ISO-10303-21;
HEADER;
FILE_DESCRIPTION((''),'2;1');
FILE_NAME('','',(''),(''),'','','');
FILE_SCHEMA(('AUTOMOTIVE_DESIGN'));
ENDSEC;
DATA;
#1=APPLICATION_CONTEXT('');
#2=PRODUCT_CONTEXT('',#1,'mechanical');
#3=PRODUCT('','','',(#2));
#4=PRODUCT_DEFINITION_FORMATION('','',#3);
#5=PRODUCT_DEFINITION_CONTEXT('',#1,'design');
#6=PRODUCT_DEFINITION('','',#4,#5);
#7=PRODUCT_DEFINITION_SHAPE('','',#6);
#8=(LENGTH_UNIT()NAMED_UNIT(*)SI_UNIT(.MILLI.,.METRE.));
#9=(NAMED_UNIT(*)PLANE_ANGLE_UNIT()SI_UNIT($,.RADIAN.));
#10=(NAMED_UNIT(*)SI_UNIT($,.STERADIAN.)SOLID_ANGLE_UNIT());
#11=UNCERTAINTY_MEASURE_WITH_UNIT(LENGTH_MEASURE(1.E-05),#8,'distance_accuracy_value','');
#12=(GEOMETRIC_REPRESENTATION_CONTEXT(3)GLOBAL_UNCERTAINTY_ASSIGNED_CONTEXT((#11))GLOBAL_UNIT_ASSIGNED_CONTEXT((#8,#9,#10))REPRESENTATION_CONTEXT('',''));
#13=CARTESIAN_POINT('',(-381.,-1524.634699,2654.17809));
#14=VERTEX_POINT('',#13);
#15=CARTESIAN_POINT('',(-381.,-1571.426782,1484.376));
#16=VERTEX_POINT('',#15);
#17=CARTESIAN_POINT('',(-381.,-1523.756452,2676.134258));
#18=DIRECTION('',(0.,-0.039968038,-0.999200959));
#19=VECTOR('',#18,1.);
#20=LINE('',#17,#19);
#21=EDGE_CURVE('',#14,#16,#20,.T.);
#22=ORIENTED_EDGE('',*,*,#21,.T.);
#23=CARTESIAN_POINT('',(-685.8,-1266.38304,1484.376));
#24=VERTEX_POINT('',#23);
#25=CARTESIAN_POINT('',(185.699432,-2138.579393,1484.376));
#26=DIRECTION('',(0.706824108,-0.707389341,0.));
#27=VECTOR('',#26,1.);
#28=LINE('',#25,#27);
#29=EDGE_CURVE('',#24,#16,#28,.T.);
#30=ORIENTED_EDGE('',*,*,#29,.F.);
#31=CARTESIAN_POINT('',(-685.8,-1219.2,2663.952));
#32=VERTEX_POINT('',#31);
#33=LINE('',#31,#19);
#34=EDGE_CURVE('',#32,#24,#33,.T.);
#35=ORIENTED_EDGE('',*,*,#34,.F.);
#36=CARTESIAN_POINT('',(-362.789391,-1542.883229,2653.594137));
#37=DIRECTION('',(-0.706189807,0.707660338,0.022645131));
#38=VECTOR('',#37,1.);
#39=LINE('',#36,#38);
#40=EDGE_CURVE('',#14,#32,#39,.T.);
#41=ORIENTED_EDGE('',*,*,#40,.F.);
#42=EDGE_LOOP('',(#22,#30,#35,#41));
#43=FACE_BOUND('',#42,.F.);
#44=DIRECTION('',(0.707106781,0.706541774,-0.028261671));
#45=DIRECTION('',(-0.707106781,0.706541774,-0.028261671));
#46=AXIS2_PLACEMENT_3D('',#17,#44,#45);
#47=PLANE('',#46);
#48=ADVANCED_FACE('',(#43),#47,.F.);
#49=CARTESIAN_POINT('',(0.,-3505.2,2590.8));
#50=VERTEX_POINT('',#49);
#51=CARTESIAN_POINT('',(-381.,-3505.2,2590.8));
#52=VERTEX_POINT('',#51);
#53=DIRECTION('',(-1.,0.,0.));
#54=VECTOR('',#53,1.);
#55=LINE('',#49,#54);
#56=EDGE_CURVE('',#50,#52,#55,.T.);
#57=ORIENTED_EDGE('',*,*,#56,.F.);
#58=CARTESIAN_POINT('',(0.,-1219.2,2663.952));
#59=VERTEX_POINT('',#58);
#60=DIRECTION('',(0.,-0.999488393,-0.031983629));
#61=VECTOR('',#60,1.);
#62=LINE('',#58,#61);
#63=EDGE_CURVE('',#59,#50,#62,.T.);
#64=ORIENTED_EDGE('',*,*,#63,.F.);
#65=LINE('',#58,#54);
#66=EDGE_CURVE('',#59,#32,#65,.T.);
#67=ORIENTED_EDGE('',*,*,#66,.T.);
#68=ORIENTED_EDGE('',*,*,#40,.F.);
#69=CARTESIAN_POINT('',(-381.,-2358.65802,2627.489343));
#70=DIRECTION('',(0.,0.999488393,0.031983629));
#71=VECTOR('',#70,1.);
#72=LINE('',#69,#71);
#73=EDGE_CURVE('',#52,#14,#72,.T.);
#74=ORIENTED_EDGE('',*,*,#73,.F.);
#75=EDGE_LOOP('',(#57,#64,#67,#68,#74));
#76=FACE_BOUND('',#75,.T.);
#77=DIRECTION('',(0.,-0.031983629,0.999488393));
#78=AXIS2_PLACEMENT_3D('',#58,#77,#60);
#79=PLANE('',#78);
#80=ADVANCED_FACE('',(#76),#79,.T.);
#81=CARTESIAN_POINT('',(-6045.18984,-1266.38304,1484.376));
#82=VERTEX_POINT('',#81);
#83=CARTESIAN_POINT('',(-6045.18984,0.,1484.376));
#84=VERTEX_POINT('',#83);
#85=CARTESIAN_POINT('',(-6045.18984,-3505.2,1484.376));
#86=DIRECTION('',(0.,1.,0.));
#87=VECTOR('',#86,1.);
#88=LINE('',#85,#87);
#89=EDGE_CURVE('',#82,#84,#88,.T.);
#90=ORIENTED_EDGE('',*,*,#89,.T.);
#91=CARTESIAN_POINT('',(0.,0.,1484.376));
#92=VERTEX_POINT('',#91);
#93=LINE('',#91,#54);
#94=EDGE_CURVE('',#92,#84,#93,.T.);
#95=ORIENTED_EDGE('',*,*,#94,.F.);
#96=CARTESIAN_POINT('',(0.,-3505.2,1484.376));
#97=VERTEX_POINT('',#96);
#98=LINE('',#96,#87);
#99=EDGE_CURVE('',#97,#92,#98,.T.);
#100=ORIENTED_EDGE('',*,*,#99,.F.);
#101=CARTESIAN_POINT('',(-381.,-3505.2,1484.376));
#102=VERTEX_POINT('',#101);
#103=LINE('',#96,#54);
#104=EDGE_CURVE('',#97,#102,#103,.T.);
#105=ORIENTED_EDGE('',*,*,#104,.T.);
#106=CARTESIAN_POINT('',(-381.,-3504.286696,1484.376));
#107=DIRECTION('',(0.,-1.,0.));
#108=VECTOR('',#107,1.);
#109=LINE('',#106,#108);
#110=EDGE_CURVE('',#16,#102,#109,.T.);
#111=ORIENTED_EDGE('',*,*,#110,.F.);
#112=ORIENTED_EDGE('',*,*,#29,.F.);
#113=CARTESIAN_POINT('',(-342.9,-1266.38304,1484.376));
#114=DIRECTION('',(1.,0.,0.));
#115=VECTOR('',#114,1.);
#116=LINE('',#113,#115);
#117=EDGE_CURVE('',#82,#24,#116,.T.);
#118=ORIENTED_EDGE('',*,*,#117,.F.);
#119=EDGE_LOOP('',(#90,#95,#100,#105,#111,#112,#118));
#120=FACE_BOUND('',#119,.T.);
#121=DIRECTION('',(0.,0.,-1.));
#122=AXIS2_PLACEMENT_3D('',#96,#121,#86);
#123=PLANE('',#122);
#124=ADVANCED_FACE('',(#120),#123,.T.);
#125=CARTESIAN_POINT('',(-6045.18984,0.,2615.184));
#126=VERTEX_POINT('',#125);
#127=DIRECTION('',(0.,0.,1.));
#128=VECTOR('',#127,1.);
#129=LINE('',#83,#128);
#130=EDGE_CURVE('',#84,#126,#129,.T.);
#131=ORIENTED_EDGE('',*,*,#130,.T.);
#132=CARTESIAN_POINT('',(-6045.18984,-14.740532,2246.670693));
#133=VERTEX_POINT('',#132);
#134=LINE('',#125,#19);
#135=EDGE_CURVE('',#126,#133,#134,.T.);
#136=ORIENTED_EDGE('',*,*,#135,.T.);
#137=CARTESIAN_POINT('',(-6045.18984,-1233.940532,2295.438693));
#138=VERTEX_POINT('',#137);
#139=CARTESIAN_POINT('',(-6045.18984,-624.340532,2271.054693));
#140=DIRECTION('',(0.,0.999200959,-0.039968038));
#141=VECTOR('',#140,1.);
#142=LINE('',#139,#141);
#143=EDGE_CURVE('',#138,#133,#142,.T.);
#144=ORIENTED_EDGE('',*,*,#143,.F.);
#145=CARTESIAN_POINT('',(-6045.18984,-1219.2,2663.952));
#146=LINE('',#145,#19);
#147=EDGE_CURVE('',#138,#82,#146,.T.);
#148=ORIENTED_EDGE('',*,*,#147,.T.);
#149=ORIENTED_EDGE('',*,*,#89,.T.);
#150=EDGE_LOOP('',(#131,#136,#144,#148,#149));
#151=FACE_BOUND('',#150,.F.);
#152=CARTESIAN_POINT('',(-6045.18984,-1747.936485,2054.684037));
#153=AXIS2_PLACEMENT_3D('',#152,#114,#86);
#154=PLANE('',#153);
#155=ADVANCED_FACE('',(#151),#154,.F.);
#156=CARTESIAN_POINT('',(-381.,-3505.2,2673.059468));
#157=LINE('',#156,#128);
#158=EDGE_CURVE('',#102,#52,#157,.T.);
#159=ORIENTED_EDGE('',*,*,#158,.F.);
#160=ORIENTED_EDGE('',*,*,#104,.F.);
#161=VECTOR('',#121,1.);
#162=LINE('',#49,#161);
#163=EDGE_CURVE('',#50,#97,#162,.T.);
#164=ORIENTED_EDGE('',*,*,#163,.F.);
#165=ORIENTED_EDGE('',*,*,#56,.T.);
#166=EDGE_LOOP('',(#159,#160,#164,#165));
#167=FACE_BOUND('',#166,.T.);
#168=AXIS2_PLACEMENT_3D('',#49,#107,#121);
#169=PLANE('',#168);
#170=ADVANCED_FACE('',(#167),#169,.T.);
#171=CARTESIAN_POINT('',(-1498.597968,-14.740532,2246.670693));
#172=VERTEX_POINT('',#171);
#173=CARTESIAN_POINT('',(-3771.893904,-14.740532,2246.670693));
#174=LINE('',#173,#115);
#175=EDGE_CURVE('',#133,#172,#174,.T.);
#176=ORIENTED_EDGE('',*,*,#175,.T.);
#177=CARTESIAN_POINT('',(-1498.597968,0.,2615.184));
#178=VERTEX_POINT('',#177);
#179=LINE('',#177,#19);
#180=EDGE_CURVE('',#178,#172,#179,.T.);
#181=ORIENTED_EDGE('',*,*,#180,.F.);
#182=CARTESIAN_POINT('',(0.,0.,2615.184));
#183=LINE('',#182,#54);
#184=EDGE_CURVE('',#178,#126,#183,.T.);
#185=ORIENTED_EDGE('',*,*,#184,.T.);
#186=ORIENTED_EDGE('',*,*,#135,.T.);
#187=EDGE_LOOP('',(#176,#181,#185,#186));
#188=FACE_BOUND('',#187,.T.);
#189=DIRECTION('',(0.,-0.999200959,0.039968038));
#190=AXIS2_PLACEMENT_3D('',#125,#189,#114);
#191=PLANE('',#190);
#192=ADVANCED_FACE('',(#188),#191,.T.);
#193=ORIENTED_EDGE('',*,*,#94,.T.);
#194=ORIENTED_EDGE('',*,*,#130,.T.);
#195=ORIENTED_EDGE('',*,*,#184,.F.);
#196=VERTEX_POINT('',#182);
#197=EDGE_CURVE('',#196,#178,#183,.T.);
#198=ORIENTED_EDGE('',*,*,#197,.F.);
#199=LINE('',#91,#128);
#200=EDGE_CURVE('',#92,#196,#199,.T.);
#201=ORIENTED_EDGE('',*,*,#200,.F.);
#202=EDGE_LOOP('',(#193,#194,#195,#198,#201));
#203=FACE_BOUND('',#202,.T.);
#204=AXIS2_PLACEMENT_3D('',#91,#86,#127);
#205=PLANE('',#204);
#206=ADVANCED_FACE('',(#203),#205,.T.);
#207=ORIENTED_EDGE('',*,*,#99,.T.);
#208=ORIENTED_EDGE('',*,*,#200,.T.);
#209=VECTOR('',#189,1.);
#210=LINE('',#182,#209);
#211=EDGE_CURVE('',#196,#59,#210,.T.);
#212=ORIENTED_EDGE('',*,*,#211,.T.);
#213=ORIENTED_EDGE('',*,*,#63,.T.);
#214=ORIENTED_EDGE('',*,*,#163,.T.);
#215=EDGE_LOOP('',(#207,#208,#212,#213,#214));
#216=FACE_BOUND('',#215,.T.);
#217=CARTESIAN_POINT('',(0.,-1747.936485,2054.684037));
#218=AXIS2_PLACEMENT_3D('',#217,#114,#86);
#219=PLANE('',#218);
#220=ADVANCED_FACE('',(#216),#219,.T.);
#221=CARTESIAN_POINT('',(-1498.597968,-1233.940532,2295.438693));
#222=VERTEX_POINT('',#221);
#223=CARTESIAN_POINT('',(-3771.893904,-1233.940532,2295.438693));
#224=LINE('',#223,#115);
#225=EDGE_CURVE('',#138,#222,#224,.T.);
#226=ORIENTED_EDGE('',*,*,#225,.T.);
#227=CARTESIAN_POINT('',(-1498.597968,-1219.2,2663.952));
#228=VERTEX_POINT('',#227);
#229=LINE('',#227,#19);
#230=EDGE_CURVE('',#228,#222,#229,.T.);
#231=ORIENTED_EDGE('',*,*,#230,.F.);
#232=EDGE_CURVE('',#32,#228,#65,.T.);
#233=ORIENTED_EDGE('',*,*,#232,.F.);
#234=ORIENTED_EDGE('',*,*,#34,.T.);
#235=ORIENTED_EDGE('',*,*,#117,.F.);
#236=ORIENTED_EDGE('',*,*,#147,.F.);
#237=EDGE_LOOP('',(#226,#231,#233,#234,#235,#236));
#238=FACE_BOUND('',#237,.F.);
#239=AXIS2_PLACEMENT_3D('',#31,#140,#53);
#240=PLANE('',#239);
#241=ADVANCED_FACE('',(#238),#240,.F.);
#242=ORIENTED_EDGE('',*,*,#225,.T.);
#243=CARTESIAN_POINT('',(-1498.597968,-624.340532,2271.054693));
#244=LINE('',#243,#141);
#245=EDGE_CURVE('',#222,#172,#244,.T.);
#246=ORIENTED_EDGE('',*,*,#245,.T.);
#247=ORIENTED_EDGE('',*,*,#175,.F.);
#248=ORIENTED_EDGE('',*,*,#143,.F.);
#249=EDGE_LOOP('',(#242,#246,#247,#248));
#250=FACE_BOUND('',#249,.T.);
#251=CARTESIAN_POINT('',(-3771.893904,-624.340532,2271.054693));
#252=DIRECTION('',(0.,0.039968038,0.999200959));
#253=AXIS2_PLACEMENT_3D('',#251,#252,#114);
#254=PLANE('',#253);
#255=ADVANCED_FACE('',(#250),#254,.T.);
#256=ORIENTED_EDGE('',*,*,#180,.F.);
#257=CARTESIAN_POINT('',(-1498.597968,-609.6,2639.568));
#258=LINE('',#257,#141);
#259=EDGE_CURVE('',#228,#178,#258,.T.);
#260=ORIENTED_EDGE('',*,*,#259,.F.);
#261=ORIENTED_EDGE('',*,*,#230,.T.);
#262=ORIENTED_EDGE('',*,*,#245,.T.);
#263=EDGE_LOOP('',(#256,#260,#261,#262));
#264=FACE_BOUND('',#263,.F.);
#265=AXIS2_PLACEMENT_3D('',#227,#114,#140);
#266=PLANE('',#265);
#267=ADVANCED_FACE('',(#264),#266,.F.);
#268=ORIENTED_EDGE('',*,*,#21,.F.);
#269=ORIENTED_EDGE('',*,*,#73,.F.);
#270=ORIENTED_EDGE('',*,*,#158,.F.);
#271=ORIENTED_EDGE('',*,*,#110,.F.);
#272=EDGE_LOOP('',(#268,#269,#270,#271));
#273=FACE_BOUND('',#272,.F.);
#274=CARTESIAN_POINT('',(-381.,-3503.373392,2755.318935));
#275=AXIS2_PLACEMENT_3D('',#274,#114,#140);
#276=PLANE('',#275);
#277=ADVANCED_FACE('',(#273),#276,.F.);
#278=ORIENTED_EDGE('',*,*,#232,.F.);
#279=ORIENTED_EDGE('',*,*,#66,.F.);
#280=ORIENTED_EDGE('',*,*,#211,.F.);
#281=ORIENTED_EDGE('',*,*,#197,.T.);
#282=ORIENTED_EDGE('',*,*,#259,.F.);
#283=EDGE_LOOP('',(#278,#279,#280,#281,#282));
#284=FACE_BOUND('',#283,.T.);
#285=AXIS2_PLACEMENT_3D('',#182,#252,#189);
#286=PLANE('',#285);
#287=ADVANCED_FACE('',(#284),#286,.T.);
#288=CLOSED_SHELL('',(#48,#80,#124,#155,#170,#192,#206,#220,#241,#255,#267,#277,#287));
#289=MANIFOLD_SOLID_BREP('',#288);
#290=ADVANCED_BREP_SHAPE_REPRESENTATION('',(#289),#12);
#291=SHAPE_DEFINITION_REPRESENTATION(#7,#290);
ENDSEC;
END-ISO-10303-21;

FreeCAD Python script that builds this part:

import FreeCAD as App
import Part
import Sketcher
Q = App.Units.Quantity

doc = App.newDocument("Part")
body = doc.addObject("PartDesign::Body", "Body")

# Sketch on YZ plane
sketch1 = body.newObject("Sketcher::SketchObject", "Sketch")
sketch1.AttachmentSupport = (doc.getObject("YZ_Plane"), [""])
sketch1.MapMode = "FlatFace"
sketch1.addGeometry([
    Part.LineSegment(App.Vector(-3505, 1484, 0), App.Vector(0, 1484, 0)),  # 0
    Part.LineSegment(App.Vector(0, 1484, 0), App.Vector(0, 2615, 0)),  # 1
    Part.LineSegment(App.Vector(0, 2615, 0), App.Vector(-1219, 2664, 0)),  # 2
    Part.LineSegment(App.Vector(-1219, 2664, 0), App.Vector(-3505, 2591, 0)),  # 3
    Part.LineSegment(App.Vector(-3505, 2591, 0), App.Vector(-3505, 1484, 0)),  # 4
], False)
sketch1.addConstraint([
    Sketcher.Constraint("Coincident", 0, 2, 1, 1),
    Sketcher.Constraint("Coincident", 1, 2, 2, 1),
    Sketcher.Constraint("Coincident", 2, 2, 3, 1),
    Sketcher.Constraint("Coincident", 3, 2, 4, 1),
    Sketcher.Constraint("Coincident", 4, 2, 0, 1),
    Sketcher.Constraint("Horizontal", 0),
    Sketcher.Constraint("Vertical", 1),
    Sketcher.Constraint("Vertical", 4),
    Sketcher.Constraint("PointOnObject", 0, 2, -2),
    Sketcher.Constraint("DistanceX", 0, 1, 0, 2, Q("138 in")),
    Sketcher.Constraint("DistanceX", 2, 2, -1, 1, Q("48 in")),
    Sketcher.Constraint("DistanceY", -1, 1, 3, 2, Q("102 in")),
    Sketcher.Constraint("DistanceY", 1, 1, 1, 2, Q("44.52 in")),
    Sketcher.Constraint("DistanceY", 4, 2, 4, 1, Q("43.56 in")),
    Sketcher.Constraint("DistanceY", -1, 1, 2, 2, Q("104.88 in")),
])
pad1 = body.newObject("PartDesign::Pad", "Pad")
pad1.Profile = sketch1
pad1.Length = Q("237.9996 in")
pad1.Reversed = True

# Sketch on an angled plane
sketch2 = body.newObject("Sketcher::SketchObject", "Sketch001")
sketch2.Placement = App.Placement(App.Vector(0, 104.440256, 2611.00639), App.Rotation(App.Vector(1, 0, 0), App.Vector(0, 0.999200959, -0.039968038), App.Vector(0, 0.039968038, 0.999200959), "ZXY"))
sketch2.addGeometry([
    Part.LineSegment(App.Vector(-686, -1325, 0), App.Vector(-6045, -1325, 0)),  # 0
    Part.LineSegment(App.Vector(-6045, -1325, 0), App.Vector(-6045, -3611, 0)),  # 1
    Part.LineSegment(App.Vector(-6045, -3611, 0), App.Vector(-381, -3611, 0)),  # 2
    Part.LineSegment(App.Vector(-381, -3611, 0), App.Vector(-381, -1629, 0)),  # 3
    Part.LineSegment(App.Vector(-381, -1629, 0), App.Vector(-686, -1325, 0)),  # 4
], False)
sketch2.addConstraint([
    Sketcher.Constraint("Coincident", 0, 2, 1, 1),
    Sketcher.Constraint("Coincident", 1, 2, 2, 1),
    Sketcher.Constraint("Coincident", 2, 2, 3, 1),
    Sketcher.Constraint("Coincident", 3, 2, 4, 1),
    Sketcher.Constraint("Coincident", 4, 2, 0, 1),
    Sketcher.Constraint("Horizontal", 0),
    Sketcher.Constraint("Vertical", 1),
    Sketcher.Constraint("Horizontal", 2),
    Sketcher.Constraint("Vertical", 3),
    Sketcher.Constraint("DistanceY", 1, 2, 1, 1, Q("90 in")),
    Sketcher.Constraint("DistanceY", 3, 1, 3, 2, Q("78 in")),
    Sketcher.Constraint("DistanceX", 2, 2, -1, 1, Q("15 in")),
    Sketcher.Constraint("DistanceX", 4, 2, -1, 1, Q("27 in")),
    Sketcher.Constraint("DistanceX", 0, 2, 0, 1, Q("210.9996 in")),
    Sketcher.Constraint("DistanceY", 0, 2, -1, 1, 1324.698745),
])
pocket1 = body.newObject("PartDesign::Pocket", "Pocket")
pocket1.Profile = sketch2
pocket1.Type = "ThroughAll"

# Sketch on an angled plane
sketch3 = body.newObject("Sketcher::SketchObject", "Sketch002")
sketch3.Placement = App.Placement(App.Vector(0, 104.440256, 2611.00639), App.Rotation(App.Vector(1, 0, 0), App.Vector(0, 0.999200959, -0.039968038), App.Vector(0, 0.039968038, 0.999200959), "ZXY"))
sketch3.addGeometry([
    Part.LineSegment(App.Vector(-6045, -105, 0), App.Vector(-6045, -1325, 0)),
    Part.LineSegment(App.Vector(-6045, -1325, 0), App.Vector(-1499, -1325, 0)),
    Part.LineSegment(App.Vector(-1499, -1325, 0), App.Vector(-1499, -105, 0)),
    Part.LineSegment(App.Vector(-1499, -105, 0), App.Vector(-6045, -105, 0)),
], False)
sketch3.addConstraint([
    Sketcher.Constraint("Coincident", 0, 2, 1, 1),
    Sketcher.Constraint("Coincident", 1, 2, 2, 1),
    Sketcher.Constraint("Coincident", 2, 2, 3, 1),
    Sketcher.Constraint("Coincident", 3, 2, 0, 1),
    Sketcher.Constraint("Vertical", 0),
    Sketcher.Constraint("Horizontal", 1),
    Sketcher.Constraint("Vertical", 2),
    Sketcher.Constraint("Horizontal", 3),
    Sketcher.Constraint("DistanceX", 0, 2, -1, 1, Q("237.9996 in")),
    Sketcher.Constraint("DistanceX", 1, 1, 1, 2, 4546.591872),
    Sketcher.Constraint("DistanceY", 0, 2, 0, 1, 1220.174971),
    Sketcher.Constraint("DistanceY", 0, 2, -1, 1, 1324.698745),
])
pocket2 = body.newObject("PartDesign::Pocket", "Pocket001")
pocket2.Profile = sketch3
pocket2.Length = Q("14.52 in")

doc.recompute()
